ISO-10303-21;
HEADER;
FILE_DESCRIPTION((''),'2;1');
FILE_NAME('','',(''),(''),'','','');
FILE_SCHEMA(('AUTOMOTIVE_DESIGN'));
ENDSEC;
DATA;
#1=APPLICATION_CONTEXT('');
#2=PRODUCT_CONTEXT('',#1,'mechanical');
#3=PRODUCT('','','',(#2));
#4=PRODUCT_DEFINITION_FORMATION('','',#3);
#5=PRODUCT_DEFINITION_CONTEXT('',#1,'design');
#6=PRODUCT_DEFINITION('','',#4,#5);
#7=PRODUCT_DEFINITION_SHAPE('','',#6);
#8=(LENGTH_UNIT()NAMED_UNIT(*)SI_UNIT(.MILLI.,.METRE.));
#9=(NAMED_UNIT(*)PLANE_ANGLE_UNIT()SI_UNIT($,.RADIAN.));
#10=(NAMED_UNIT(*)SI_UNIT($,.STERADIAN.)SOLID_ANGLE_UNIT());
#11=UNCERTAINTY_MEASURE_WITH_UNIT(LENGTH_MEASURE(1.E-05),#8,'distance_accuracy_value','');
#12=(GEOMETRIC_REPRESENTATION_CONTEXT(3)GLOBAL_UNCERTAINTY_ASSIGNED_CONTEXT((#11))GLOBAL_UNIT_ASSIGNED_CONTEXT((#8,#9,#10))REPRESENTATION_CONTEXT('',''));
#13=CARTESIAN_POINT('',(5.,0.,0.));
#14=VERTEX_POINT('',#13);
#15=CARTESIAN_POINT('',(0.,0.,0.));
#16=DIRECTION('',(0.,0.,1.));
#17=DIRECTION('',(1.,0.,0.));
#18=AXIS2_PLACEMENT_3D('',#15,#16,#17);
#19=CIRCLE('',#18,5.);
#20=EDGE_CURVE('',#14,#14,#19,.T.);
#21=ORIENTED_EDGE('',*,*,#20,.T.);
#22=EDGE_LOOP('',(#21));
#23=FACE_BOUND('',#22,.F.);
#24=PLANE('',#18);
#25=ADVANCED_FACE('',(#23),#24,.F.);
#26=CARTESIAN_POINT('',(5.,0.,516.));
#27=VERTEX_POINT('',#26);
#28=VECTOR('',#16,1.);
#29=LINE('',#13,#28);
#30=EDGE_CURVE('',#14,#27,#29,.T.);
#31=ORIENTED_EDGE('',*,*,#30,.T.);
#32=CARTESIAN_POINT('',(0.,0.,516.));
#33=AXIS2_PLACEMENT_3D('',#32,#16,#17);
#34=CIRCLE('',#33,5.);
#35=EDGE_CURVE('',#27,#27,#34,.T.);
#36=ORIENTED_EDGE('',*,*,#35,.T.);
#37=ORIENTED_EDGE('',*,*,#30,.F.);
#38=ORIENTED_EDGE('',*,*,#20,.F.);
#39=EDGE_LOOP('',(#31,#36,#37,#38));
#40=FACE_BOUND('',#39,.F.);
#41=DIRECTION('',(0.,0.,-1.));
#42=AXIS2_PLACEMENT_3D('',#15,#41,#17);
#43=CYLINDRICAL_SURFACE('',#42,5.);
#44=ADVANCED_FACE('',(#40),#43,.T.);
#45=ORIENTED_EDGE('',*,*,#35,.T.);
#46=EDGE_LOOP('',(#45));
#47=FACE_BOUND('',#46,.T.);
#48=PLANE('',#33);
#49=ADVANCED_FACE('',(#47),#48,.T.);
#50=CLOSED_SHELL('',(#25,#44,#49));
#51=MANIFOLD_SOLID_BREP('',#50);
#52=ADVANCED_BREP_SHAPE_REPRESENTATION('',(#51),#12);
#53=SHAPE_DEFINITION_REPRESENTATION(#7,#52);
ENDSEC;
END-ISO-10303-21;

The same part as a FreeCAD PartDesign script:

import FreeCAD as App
import Part
import Sketcher
from FreeCAD import Vector
Q = App.Units.Quantity

doc = App.newDocument("Part")
body = doc.addObject("PartDesign::Body", "Body")

sketch1 = body.newObject("Sketcher::SketchObject", "Sketch")
sketch1.AttachmentSupport = (doc.getObject("XY_Plane"), [""])
sketch1.MapMode = "FlatFace"
sketch1.addGeometry(Part.Circle(Vector(0, 0, 0), Vector(0, 0, 1), 5), False)
sketch1.addConstraint(Sketcher.Constraint("Coincident", 0, 3, -1, 1))
sketch1.addConstraint(Sketcher.Constraint("Diameter", 0, Q("10 mm")))
pad1 = body.newObject("PartDesign::Pad", "Pad")
pad1.Profile = sketch1
pad1.Length = 516

doc.recompute()
